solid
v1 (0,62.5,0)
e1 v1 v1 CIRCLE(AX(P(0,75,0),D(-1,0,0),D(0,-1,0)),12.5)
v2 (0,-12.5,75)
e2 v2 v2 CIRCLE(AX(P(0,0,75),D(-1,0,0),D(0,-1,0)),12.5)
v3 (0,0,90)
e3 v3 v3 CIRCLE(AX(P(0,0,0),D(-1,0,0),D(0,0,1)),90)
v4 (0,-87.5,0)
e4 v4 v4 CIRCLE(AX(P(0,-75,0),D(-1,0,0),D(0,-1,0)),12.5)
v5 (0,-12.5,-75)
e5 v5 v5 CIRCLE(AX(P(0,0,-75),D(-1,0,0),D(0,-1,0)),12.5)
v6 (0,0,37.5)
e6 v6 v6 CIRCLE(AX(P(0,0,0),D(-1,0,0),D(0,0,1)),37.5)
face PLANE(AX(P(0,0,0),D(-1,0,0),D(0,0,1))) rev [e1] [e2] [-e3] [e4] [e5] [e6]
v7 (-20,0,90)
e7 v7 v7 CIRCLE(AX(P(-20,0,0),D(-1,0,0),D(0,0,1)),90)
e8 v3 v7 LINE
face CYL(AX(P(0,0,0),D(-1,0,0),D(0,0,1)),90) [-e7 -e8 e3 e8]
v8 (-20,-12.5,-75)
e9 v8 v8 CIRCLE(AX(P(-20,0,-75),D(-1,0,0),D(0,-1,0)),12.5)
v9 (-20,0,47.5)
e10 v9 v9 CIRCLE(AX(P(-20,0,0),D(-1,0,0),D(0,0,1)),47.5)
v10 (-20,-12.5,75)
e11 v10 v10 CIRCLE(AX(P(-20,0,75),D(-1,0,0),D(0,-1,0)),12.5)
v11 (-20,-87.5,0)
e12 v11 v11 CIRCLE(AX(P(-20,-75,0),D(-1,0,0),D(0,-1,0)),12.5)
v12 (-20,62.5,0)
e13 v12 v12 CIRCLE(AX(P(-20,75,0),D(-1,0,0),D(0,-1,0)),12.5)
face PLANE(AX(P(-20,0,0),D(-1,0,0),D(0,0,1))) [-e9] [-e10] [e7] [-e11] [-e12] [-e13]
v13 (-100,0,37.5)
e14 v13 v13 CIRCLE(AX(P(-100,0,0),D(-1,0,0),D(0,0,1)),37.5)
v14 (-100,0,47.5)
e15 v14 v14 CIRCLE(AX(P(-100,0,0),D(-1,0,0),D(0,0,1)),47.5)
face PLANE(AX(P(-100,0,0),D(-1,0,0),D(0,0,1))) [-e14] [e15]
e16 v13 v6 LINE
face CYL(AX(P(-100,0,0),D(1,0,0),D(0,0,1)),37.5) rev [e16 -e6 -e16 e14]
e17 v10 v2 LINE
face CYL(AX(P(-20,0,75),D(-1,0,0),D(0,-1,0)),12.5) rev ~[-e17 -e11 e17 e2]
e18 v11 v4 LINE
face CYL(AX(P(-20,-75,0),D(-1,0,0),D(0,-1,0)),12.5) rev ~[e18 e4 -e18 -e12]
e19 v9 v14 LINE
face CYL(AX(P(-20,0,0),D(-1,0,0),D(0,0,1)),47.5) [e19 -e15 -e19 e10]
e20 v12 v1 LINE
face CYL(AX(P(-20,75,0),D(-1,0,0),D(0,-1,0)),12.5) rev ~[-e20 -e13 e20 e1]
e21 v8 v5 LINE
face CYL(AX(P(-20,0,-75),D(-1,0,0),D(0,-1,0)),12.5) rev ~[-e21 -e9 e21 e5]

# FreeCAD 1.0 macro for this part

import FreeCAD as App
import Part
import Sketcher

V = App.Vector
Q = App.Units.Quantity


def add_polygon(sketch, points):
    """Adds a closed chain of lines whose ends are joined by coincident constraints."""
    first, n = sketch.GeometryCount, len(points)
    for a, b in zip(points, points[1:] + points[:1]):
        sketch.addGeometry(Part.LineSegment(App.Vector(*a, 0), App.Vector(*b, 0)), False)
    for i in range(n):
        sketch.addConstraint(Sketcher.Constraint("Coincident", first + i, 2, first + (i + 1) % n, 1))

doc = App.newDocument("Part")
body = doc.addObject("PartDesign::Body", "Body")

sketch1 = body.newObject("Sketcher::SketchObject", "Sketch")
sketch1.AttachmentSupport = (doc.getObject("XZ_Plane"), [""])
sketch1.MapMode = "FlatFace"
add_polygon(sketch1, [(-100, 38), (0, 38), (0, 90), (-20, 90), (-20, 48), (-100, 48)])
sketch1.addConstraint([
    Sketcher.Constraint("Horizontal", 0),
    Sketcher.Constraint("Vertical", 1),
    Sketcher.Constraint("Horizontal", 2),
    Sketcher.Constraint("Vertical", 3),
    Sketcher.Constraint("Horizontal", 4),
    Sketcher.Constraint("Vertical", 5),
    Sketcher.Constraint("PointOnObject", 0, 2, -2),
    Sketcher.Constraint("DistanceX", 0, 1, 0, 2, Q("100 mm")),
    Sketcher.Constraint("DistanceX", 2, 2, 2, 1, Q("20 mm")),
    Sketcher.Constraint("DistanceY", 5, 2, 5, 1, Q("10 mm")),
    Sketcher.Constraint("DistanceY", 1, 1, 1, 2, Q("52.5 mm")),
    Sketcher.Constraint("DistanceY", -1, 1, 1, 2, Q("90 mm")),
])
revolution = body.newObject("PartDesign::Revolution", "Revolution")
revolution.Profile = sketch1
revolution.ReferenceAxis = (sketch1, ["H_Axis"])
revolution.Angle = 360

sketch2 = body.newObject("Sketcher::SketchObject", "Sketch001")
sketch2.AttachmentSupport = (doc.getObject("YZ_Plane"), [""])
sketch2.MapMode = "FlatFace"
sketch2.AttachmentOffset = App.Placement(V(0, 0, -20), App.Rotation())
sketch2.addGeometry([
    Part.Circle(V(0, 75, 0), V(0, 0, 1), 12),
    Part.Circle(V(75, 0, 0), V(0, 0, 1), 12),
    Part.Circle(V(0, -75, 0), V(0, 0, 1), 12),
    Part.Circle(V(-75, 0, 0), V(0, 0, 1), 12),
], False)
sketch2.addConstraint([
    Sketcher.Constraint("Equal", 0, 1),
    Sketcher.Constraint("Equal", 1, 2),
    Sketcher.Constraint("Equal", 2, 3),
    Sketcher.Constraint("Symmetric", 0, 3, 2, 3, -1, 1),
    Sketcher.Constraint("Symmetric", 1, 3, 3, 3, -1, 1),
    Sketcher.Constraint("PointOnObject", 0, 3, -2),
    Sketcher.Constraint("PointOnObject", 1, 3, -1),
    Sketcher.Constraint("Diameter", 0, Q("25 mm")),
    Sketcher.Constraint("DistanceY", -1, 1, 0, 3, Q("75 mm")),
    Sketcher.Constraint("DistanceX", -1, 1, 1, 3, Q("75 mm")),
])
pocket1 = body.newObject("PartDesign::Pocket", "Pocket")
pocket1.Profile = sketch2
pocket1.Length = 25
pocket1.Reversed = True

doc.recompute()
